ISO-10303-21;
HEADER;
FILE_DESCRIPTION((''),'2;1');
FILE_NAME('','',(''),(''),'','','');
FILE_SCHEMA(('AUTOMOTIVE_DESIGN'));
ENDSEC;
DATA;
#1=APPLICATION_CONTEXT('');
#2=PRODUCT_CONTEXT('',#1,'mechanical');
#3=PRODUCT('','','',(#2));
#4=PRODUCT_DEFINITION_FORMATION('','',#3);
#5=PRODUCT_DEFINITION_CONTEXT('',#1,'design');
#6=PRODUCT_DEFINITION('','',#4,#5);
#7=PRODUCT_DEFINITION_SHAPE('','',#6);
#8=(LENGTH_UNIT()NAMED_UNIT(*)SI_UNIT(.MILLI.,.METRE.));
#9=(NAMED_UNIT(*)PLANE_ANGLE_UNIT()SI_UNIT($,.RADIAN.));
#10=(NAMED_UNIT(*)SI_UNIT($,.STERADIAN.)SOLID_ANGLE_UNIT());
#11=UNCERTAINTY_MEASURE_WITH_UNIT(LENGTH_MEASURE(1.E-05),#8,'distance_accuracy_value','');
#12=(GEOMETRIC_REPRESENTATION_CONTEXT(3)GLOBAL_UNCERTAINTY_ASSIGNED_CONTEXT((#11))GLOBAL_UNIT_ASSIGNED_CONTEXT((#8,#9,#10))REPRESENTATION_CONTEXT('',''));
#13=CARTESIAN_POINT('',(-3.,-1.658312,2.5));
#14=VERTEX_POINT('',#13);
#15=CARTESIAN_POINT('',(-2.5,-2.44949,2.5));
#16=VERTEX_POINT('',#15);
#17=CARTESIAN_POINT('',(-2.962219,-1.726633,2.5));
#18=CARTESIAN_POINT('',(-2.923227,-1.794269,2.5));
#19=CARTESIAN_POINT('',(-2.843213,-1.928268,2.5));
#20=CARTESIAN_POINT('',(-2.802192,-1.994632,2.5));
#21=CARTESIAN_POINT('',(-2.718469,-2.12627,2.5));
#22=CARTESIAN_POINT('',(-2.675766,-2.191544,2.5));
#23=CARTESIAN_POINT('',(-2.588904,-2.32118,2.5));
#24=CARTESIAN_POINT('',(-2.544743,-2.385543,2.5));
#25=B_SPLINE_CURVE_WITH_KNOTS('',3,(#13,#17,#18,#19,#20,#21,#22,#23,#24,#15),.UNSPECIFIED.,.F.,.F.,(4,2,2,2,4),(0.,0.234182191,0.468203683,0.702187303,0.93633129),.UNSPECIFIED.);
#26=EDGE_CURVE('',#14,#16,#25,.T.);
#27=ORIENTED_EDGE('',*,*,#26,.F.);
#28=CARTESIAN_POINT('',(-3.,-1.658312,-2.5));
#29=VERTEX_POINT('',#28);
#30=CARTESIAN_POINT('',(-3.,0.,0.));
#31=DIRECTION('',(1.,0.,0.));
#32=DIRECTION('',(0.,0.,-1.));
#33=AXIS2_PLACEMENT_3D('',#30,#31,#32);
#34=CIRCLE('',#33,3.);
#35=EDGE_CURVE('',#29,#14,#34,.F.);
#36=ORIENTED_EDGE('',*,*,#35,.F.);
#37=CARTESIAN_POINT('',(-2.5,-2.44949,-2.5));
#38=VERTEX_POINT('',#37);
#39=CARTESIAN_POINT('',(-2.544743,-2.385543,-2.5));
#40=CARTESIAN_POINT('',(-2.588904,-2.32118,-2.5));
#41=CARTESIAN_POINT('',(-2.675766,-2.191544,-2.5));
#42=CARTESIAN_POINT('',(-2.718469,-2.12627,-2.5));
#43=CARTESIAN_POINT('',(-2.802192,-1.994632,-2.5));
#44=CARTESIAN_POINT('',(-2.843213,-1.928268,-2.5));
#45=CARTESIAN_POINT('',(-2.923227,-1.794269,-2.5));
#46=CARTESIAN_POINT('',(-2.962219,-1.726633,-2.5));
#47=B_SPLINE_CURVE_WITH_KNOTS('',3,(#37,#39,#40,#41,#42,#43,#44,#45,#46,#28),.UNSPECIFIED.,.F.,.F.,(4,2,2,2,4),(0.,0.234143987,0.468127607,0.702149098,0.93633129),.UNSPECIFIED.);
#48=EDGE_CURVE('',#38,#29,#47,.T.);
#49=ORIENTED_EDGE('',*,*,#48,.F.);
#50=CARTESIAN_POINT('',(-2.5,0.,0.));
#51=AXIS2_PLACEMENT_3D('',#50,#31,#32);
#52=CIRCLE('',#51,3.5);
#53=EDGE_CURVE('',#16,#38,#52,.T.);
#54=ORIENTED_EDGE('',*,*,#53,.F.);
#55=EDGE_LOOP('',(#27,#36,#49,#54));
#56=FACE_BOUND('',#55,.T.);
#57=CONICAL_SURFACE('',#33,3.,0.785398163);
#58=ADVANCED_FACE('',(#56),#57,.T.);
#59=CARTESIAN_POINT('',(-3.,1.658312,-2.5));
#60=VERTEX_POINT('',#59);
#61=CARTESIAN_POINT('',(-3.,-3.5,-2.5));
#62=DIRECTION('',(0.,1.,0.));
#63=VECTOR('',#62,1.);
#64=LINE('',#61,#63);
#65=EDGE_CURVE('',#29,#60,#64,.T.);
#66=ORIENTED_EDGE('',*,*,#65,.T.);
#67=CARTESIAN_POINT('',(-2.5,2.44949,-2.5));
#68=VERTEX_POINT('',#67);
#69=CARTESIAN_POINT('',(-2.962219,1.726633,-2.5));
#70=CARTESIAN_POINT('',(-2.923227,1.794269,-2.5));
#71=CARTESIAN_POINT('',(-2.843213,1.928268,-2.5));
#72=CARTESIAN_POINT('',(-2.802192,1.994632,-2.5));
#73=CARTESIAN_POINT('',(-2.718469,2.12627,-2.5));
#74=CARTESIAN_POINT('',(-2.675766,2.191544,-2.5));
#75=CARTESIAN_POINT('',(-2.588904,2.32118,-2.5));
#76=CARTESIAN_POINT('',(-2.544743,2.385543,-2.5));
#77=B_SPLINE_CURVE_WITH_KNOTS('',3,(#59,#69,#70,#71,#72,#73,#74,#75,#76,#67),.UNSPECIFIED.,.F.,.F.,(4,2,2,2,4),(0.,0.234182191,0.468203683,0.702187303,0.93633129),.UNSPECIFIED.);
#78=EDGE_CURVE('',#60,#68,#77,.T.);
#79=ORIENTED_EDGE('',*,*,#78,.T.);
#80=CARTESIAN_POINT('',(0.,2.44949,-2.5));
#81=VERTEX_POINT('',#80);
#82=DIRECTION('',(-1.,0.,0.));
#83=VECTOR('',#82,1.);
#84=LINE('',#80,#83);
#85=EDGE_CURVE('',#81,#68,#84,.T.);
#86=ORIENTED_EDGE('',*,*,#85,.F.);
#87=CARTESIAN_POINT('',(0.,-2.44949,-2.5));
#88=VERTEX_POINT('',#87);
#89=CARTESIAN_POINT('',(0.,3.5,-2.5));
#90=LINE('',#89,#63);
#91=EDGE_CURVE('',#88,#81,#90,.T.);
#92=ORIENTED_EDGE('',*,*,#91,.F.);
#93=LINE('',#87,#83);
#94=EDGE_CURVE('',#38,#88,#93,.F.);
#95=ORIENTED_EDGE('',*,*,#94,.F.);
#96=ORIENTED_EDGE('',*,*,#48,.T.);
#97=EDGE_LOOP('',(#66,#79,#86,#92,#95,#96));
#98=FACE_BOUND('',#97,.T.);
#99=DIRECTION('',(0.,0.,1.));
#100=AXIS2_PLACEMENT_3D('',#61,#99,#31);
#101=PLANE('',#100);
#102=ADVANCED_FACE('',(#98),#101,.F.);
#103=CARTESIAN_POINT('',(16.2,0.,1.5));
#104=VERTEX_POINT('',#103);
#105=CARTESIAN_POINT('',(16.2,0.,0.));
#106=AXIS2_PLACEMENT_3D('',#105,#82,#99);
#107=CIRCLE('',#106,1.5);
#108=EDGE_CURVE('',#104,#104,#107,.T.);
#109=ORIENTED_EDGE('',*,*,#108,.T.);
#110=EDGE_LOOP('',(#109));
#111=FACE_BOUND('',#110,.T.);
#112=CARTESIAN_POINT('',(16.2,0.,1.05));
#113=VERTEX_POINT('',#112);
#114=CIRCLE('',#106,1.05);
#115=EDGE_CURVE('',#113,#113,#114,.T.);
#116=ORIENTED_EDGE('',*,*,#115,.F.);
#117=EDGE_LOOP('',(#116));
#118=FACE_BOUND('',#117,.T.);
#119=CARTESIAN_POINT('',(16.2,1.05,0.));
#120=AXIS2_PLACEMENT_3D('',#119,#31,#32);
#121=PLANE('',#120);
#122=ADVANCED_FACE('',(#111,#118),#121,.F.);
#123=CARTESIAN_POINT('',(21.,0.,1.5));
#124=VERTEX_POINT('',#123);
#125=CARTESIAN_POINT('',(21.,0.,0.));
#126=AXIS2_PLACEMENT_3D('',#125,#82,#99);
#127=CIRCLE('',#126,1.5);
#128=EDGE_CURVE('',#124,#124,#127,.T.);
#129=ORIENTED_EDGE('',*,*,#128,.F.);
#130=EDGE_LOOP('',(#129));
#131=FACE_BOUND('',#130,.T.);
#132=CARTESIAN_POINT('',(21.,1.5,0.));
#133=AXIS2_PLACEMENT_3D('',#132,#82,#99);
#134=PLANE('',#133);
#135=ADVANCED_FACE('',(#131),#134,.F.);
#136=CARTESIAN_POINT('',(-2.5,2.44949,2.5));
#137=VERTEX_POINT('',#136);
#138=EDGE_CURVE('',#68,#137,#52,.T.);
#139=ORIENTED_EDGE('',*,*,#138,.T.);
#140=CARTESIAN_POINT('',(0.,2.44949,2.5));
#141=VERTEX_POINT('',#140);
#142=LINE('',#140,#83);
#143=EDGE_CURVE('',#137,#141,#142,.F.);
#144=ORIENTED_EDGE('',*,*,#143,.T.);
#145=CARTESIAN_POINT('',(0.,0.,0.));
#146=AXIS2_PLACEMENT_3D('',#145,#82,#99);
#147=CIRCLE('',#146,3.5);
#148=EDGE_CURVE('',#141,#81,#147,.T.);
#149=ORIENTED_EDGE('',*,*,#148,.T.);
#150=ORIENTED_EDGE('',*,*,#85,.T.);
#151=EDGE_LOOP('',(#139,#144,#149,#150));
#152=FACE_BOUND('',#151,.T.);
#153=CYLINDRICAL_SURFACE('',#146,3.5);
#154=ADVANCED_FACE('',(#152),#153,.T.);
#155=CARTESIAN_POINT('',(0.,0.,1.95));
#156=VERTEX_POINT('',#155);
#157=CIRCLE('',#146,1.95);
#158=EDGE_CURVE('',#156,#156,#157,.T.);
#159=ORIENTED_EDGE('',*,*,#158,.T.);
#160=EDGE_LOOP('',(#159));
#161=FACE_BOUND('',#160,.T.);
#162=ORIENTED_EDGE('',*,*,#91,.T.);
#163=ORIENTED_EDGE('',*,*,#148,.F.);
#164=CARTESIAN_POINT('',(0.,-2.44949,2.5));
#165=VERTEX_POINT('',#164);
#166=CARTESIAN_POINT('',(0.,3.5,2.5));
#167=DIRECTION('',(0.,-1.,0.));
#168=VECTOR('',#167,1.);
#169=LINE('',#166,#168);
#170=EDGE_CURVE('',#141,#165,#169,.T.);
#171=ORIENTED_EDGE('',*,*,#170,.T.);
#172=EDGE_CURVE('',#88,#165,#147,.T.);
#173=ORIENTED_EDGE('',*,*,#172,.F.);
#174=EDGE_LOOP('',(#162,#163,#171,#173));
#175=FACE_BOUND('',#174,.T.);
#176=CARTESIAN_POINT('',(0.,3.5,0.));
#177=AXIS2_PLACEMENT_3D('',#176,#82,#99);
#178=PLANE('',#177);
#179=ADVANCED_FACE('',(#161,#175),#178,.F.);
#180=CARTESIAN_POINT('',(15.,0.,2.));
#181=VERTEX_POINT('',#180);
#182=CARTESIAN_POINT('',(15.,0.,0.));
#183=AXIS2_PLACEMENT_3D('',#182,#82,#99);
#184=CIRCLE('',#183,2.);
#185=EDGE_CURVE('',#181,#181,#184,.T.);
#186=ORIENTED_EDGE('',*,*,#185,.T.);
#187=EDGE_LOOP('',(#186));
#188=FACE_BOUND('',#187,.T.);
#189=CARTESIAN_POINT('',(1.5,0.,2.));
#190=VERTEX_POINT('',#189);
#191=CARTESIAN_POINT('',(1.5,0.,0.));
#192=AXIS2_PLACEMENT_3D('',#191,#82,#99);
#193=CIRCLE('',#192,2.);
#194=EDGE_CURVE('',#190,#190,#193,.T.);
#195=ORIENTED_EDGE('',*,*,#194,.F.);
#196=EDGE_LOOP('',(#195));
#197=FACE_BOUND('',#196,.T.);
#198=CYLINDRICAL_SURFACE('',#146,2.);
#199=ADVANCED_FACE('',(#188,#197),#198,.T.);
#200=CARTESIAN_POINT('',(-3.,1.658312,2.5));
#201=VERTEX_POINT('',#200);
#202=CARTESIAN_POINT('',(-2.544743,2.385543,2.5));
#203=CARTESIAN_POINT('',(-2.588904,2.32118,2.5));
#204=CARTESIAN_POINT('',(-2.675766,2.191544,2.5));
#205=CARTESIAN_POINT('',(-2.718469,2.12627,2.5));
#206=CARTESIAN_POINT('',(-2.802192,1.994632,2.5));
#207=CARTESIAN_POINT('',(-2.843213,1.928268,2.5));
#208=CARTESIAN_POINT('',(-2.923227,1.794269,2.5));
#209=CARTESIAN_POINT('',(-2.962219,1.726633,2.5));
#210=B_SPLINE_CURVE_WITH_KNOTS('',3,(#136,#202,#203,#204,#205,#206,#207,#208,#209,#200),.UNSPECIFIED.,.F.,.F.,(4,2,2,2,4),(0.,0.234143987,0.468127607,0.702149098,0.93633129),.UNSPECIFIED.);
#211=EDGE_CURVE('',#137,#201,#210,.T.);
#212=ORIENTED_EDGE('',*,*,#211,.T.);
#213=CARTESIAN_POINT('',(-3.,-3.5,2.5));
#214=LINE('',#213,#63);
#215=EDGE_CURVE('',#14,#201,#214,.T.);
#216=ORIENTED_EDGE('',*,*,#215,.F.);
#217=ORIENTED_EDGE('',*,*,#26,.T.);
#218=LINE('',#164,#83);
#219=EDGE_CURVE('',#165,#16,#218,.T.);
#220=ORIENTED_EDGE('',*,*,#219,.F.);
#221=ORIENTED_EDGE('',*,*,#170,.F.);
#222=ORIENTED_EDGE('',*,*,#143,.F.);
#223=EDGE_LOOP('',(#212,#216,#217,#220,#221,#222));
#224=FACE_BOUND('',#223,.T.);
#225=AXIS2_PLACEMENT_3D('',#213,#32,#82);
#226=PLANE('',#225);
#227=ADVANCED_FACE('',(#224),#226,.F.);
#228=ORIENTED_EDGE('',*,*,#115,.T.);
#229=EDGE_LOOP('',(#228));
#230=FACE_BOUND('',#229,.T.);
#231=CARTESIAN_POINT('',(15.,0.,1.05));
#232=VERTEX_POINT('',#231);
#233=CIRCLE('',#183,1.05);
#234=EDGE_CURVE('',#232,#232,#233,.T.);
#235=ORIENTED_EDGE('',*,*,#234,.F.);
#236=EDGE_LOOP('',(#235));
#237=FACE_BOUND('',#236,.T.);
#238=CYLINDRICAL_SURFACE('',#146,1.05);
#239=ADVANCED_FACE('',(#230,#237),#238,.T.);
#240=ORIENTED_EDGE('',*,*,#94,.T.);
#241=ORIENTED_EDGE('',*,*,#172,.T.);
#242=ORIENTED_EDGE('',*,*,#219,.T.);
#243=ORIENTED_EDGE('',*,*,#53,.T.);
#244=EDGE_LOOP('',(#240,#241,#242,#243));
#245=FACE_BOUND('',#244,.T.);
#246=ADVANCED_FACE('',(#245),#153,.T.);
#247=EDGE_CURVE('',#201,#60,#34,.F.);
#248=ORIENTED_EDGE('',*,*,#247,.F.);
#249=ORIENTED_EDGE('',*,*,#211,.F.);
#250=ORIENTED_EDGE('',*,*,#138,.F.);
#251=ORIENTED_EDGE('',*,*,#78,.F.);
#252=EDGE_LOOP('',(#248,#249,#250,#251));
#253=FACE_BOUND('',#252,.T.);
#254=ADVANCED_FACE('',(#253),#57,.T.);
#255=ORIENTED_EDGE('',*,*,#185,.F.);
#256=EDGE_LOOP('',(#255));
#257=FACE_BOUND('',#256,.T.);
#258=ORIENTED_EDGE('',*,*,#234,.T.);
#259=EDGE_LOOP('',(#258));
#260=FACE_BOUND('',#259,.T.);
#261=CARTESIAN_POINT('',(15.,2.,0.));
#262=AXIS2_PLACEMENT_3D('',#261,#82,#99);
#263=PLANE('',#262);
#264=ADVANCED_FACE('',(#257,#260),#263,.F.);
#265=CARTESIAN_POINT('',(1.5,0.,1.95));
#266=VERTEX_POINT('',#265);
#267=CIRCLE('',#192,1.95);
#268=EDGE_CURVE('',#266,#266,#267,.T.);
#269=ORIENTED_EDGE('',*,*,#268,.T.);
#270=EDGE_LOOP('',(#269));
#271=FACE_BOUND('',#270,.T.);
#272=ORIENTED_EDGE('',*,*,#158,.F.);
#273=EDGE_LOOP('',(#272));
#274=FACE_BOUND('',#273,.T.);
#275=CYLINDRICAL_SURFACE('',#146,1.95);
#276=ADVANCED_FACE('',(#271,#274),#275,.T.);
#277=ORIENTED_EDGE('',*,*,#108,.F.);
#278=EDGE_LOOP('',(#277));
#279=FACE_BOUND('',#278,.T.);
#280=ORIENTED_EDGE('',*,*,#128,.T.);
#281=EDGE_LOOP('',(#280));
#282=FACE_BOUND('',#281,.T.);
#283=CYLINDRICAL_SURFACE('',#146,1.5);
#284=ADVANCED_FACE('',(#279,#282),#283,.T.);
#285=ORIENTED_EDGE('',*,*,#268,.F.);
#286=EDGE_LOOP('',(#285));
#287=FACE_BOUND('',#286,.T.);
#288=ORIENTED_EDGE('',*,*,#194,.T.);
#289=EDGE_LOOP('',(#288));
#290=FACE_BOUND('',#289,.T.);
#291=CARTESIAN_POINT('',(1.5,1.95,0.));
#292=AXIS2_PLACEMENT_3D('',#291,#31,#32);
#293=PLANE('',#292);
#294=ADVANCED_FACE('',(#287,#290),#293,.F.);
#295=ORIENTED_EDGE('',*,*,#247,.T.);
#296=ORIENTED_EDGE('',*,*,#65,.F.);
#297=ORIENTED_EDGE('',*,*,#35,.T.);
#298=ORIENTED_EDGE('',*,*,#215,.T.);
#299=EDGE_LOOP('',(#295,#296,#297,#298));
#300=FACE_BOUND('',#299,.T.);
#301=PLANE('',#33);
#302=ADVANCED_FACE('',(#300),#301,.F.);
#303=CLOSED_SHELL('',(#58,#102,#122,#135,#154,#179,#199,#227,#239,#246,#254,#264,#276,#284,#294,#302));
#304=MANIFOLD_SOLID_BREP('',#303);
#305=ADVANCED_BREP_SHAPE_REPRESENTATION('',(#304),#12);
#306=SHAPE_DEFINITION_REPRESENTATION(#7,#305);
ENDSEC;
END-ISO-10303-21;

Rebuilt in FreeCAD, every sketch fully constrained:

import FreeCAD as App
import Part
import Sketcher
from FreeCAD import Vector


def edges_at(feature, points):
    """Names of the edges that pass closest to the given points."""
    edges = feature.Shape.Edges
    near = lambda p: min(range(len(edges)), key=lambda i: edges[i].distToShape(Part.Vertex(*p))[0])
    return sorted({f"Edge{near(p) + 1}" for p in points})


def add_polygon(sketch, points):
    """Adds a closed chain of lines whose ends are joined by coincident constraints."""
    first, n = sketch.GeometryCount, len(points)
    for a, b in zip(points, points[1:] + points[:1]):
        sketch.addGeometry(Part.LineSegment(App.Vector(*a, 0), App.Vector(*b, 0)), False)
    for i in range(n):
        sketch.addConstraint(Sketcher.Constraint("Coincident", first + i, 2, first + (i + 1) % n, 1))

doc = App.newDocument("Part")
body = doc.addObject("PartDesign::Body", "Body")

sketch1 = body.newObject("Sketcher::SketchObject", "Sketch")
sketch1.AttachmentSupport = (doc.getObject("XY_Plane"), [""])
sketch1.MapMode = "FlatFace"
add_polygon(sketch1, [(-3, 3.5), (-3, 0), (21, 0), (21, 1.5), (16.2, 1.5), (16.2, 1.05), (15, 1.05), (15, 2), (1.5, 2), (1.5, 1.95), (0, 1.95), (0, 3.5)])
sketch1.addConstraint(Sketcher.Constraint("Vertical", 0))
sketch1.addConstraint(Sketcher.Constraint("Horizontal", 1))
sketch1.addConstraint(Sketcher.Constraint("Vertical", 2))
sketch1.addConstraint(Sketcher.Constraint("Horizontal", 3))
sketch1.addConstraint(Sketcher.Constraint("Vertical", 4))
sketch1.addConstraint(Sketcher.Constraint("Horizontal", 5))
sketch1.addConstraint(Sketcher.Constraint("Vertical", 6))
sketch1.addConstraint(Sketcher.Constraint("Horizontal", 7))
sketch1.addConstraint(Sketcher.Constraint("Vertical", 8))
sketch1.addConstraint(Sketcher.Constraint("Horizontal", 9))
sketch1.addConstraint(Sketcher.Constraint("Vertical", 10))
sketch1.addConstraint(Sketcher.Constraint("Horizontal", 11))
sketch1.addConstraint(Sketcher.Constraint("PointOnObject", 0, 2, -1))
sketch1.addConstraint(Sketcher.Constraint("PointOnObject", 9, 2, -2))
sketch1.addConstraint(Sketcher.Constraint("Equal", 9, 2))
sketch1.addConstraint(Sketcher.Constraint("DistanceX", 1, 1, 1, 2, 24.0))
sketch1.addConstraint(Sketcher.Constraint("DistanceX", 11, 2, 11, 1, 3.0))
sketch1.addConstraint(Sketcher.Constraint("DistanceX", 3, 2, 3, 1, 4.8))
sketch1.addConstraint(Sketcher.Constraint("DistanceX", 5, 2, 5, 1, 1.2))
sketch1.addConstraint(Sketcher.Constraint("DistanceX", 7, 2, 7, 1, 13.5))
sketch1.addConstraint(Sketcher.Constraint("DistanceY", 0, 2, 0, 1, 3.5))
sketch1.addConstraint(Sketcher.Constraint("DistanceY", -1, 1, 6, 2, 2.0))
sketch1.addConstraint(Sketcher.Constraint("DistanceY", 4, 2, 4, 1, 0.45))
sketch1.addConstraint(Sketcher.Constraint("DistanceY", 8, 2, 8, 1, 0.05))
revolution = body.newObject("PartDesign::Revolution", "Revolution")
revolution.Profile = sketch1
revolution.ReferenceAxis = (sketch1, ["H_Axis"])
revolution.Angle = 360

sketch2 = body.newObject("Sketcher::SketchObject", "Sketch001")
sketch2.AttachmentSupport = (doc.getObject("XZ_Plane"), [""])
sketch2.MapMode = "FlatFace"
add_polygon(sketch2, [(-3, -3.5), (-3, -2.5), (0, -2.5), (0, -3.5)])
add_polygon(sketch2, [(-3, 2.5), (-3, 3.5), (0, 3.5), (0, 2.5)])
sketch2.addConstraint(Sketcher.Constraint("Vertical", 0))
sketch2.addConstraint(Sketcher.Constraint("Horizontal", 1))
sketch2.addConstraint(Sketcher.Constraint("Vertical", 2))
sketch2.addConstraint(Sketcher.Constraint("Horizontal", 3))
sketch2.addConstraint(Sketcher.Constraint("Vertical", 4))
sketch2.addConstraint(Sketcher.Constraint("Horizontal", 5))
sketch2.addConstraint(Sketcher.Constraint("Vertical", 6))
sketch2.addConstraint(Sketcher.Constraint("Horizontal", 7))
sketch2.addConstraint(Sketcher.Constraint("Symmetric", 2, 2, 5, 2, -1, 1))
sketch2.addConstraint(Sketcher.Constraint("Symmetric", 1, 2, 6, 2, -1))
sketch2.addConstraint(Sketcher.Constraint("Vertical", 3, 2, 4, 2))
sketch2.addConstraint(Sketcher.Constraint("DistanceX", 1, 1, 1, 2, 3.0))
sketch2.addConstraint(Sketcher.Constraint("DistanceY", 0, 1, 0, 2, 1.0))
sketch2.addConstraint(Sketcher.Constraint("DistanceY", 0, 2, 4, 2, 6.0))
pocket1 = body.newObject("PartDesign::Pocket", "Pocket")
pocket1.Profile = sketch2
pocket1.Type = "ThroughAll"
pocket1.Midplane = True
doc.recompute()

chamfer = body.newObject("PartDesign::Chamfer", "Chamfer")
chamfer.Base = (pocket1, edges_at(pocket1, [(-3, -3.5, 0), (-3, 3.5, 0)]))
chamfer.Size = 0.5

doc.recompute()
